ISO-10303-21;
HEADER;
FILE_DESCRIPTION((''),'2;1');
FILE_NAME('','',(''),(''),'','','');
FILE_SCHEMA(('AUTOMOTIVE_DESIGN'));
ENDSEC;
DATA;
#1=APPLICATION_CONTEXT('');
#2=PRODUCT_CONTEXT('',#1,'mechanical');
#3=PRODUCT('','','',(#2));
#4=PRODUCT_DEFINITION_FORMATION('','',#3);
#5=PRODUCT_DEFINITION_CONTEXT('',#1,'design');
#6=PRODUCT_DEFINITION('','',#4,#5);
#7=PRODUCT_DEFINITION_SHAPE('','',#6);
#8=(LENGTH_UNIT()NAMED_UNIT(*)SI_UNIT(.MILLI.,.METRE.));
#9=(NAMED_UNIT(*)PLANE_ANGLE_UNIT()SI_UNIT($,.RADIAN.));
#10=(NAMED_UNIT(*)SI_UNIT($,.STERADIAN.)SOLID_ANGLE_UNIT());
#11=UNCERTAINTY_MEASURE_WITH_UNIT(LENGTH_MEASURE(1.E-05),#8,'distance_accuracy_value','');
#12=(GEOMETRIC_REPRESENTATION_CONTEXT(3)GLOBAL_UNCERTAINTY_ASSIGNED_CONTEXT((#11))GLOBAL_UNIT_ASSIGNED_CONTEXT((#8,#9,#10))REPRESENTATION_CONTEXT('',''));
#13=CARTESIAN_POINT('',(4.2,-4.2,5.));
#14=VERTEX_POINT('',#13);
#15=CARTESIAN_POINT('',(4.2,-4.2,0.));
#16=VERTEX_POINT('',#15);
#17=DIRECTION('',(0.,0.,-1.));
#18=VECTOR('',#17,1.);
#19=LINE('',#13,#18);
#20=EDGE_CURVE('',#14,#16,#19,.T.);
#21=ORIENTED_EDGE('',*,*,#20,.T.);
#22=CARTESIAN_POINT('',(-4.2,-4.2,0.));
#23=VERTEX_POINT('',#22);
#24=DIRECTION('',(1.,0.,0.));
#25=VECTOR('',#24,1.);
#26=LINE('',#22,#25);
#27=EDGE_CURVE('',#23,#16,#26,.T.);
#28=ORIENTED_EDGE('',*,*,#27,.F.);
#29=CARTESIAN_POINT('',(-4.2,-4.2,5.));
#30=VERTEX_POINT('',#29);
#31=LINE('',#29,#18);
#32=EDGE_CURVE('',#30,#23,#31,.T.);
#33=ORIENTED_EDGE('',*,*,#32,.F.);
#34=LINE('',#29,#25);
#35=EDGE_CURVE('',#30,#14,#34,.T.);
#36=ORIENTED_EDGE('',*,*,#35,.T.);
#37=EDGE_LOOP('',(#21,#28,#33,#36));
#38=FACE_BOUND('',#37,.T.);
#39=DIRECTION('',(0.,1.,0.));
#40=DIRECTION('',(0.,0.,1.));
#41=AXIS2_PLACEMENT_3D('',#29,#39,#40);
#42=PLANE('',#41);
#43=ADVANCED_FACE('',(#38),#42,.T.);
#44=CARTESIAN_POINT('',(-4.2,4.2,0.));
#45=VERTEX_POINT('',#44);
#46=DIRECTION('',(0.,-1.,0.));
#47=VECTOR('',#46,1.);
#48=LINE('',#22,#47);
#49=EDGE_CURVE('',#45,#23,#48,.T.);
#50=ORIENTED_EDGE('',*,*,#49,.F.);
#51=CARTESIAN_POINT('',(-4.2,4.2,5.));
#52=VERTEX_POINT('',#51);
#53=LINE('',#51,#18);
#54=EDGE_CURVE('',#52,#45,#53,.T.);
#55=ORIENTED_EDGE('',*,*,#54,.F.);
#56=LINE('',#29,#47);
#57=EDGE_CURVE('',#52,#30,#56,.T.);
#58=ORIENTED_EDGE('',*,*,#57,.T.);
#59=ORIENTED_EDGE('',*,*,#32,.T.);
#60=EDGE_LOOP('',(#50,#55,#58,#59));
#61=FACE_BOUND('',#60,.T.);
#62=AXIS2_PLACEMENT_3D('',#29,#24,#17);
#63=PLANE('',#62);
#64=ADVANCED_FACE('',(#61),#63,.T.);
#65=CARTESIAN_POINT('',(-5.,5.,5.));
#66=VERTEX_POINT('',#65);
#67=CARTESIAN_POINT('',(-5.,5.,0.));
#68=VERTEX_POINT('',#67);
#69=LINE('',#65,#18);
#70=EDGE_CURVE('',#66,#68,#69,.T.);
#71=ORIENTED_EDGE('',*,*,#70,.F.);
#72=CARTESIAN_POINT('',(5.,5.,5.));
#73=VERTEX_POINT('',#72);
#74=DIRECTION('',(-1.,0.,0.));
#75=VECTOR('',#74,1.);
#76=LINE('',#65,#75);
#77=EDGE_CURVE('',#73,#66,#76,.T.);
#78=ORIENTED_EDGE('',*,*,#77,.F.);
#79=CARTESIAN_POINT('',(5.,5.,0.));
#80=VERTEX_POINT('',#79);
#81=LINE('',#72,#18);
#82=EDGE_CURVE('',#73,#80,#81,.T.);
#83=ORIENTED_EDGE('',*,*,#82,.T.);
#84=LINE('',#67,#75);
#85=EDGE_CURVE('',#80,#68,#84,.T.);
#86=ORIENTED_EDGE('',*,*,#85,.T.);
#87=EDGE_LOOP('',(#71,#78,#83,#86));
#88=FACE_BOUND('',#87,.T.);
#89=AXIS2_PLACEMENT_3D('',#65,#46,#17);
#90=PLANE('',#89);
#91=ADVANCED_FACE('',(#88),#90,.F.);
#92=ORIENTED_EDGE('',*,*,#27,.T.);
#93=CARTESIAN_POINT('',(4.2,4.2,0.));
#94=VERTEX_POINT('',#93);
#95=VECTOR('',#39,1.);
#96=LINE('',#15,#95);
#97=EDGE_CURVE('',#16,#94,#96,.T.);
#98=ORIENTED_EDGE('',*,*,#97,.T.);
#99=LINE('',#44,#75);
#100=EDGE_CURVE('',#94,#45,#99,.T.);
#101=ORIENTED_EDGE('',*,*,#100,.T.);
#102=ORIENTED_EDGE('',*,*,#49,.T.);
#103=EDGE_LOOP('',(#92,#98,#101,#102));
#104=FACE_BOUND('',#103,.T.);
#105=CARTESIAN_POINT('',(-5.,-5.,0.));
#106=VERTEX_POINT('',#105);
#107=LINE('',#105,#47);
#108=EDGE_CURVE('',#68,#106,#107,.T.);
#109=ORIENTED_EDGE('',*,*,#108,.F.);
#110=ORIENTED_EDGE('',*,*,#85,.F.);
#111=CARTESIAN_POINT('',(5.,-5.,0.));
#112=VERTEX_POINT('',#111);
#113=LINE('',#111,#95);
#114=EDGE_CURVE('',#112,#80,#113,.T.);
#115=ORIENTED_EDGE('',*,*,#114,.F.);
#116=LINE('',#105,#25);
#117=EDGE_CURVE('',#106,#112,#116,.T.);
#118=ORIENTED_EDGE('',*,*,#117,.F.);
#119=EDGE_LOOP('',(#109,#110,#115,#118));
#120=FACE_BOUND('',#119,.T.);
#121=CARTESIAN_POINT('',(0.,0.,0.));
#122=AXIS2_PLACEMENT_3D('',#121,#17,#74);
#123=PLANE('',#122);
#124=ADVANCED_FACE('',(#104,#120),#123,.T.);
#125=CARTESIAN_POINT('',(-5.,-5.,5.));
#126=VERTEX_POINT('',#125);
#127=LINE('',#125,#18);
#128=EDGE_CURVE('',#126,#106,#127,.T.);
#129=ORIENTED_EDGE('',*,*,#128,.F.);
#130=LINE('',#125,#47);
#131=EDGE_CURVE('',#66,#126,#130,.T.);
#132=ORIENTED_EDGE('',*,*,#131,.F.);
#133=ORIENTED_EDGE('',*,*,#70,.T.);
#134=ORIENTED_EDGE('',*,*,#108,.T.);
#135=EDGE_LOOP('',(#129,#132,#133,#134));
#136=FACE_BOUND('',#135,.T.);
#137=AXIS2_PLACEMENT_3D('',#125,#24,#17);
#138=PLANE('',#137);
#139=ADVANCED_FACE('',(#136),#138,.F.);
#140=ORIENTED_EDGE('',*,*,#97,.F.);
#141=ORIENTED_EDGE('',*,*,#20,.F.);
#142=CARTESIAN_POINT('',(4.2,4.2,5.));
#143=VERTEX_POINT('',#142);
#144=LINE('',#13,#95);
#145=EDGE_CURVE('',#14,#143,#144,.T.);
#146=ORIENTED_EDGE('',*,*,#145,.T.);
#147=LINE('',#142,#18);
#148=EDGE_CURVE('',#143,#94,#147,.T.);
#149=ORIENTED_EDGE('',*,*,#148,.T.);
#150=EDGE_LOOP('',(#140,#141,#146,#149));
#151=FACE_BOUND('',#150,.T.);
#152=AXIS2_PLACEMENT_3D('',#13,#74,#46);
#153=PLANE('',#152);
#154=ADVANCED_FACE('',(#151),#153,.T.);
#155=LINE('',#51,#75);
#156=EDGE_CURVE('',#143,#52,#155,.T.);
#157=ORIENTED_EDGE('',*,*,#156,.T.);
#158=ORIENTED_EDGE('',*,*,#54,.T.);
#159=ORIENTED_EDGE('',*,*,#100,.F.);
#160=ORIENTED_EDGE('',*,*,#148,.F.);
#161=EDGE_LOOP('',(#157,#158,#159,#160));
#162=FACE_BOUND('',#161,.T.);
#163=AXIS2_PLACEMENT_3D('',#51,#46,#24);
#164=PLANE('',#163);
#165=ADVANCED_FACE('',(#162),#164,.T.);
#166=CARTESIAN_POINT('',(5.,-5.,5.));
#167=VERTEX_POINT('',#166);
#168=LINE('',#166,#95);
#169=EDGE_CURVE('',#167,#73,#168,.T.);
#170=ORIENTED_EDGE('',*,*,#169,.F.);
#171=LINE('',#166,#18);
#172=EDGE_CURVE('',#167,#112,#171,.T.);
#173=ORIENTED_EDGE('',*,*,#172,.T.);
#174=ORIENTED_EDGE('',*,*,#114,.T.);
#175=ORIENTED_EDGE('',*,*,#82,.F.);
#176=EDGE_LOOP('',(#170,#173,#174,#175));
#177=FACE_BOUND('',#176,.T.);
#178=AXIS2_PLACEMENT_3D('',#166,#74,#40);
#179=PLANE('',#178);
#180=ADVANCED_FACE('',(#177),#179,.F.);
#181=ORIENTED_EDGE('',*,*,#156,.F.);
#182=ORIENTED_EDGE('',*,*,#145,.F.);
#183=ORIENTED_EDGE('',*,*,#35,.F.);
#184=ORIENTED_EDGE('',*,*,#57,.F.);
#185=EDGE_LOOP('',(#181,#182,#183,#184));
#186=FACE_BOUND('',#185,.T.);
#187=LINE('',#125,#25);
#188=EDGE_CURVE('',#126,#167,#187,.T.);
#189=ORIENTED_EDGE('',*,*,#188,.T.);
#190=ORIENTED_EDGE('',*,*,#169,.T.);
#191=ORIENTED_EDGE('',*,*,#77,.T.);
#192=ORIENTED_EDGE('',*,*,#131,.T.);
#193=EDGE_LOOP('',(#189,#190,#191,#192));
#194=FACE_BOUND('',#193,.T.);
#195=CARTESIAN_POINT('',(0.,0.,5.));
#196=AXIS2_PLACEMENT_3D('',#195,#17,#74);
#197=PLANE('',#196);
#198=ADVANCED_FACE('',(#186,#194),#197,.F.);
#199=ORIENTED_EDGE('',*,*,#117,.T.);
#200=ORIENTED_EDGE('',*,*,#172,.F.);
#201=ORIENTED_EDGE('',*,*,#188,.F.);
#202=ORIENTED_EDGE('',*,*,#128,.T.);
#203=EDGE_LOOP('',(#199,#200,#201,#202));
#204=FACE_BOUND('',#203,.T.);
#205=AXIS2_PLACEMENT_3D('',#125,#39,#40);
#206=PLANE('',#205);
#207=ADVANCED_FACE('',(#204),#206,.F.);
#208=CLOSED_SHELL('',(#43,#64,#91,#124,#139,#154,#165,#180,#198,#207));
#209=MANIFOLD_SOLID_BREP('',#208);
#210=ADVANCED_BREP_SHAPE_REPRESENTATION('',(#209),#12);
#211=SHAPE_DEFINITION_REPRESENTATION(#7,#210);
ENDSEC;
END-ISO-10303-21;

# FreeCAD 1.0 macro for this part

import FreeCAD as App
import Part
import Sketcher

V = App.Vector


def add_polygon(sketch, points):
    """Adds a closed chain of lines whose ends are joined by coincident constraints."""
    first, n = sketch.GeometryCount, len(points)
    for a, b in zip(points, points[1:] + points[:1]):
        sketch.addGeometry(Part.LineSegment(App.Vector(*a, 0), App.Vector(*b, 0)), False)
    for i in range(n):
        sketch.addConstraint(Sketcher.Constraint("Coincident", first + i, 2, first + (i + 1) % n, 1))

doc = App.newDocument("Part")
body = doc.addObject("PartDesign::Body", "Body")

# Sketch on XY plane
sketch1 = body.newObject("Sketcher::SketchObject", "Sketch")
sketch1.AttachmentSupport = (doc.getObject("XY_Plane"), [""])
sketch1.MapMode = "FlatFace"
add_polygon(sketch1, [(-5, 5), (-5, -5), (5, -5), (5, 5)])  # lines 0-3
add_polygon(sketch1, [(4, -4), (-4, -4), (-4, 4), (4, 4)])  # lines 4-7
sketch1.addConstraint(Sketcher.Constraint("Vertical", 0))
sketch1.addConstraint(Sketcher.Constraint("Horizontal", 1))
sketch1.addConstraint(Sketcher.Constraint("Vertical", 2))
sketch1.addConstraint(Sketcher.Constraint("Horizontal", 3))
sketch1.addConstraint(Sketcher.Constraint("Horizontal", 4))
sketch1.addConstraint(Sketcher.Constraint("Vertical", 5))
sketch1.addConstraint(Sketcher.Constraint("Horizontal", 6))
sketch1.addConstraint(Sketcher.Constraint("Vertical", 7))
sketch1.addConstraint(Sketcher.Constraint("Symmetric", 0, 2, 2, 2, -1, 1))
sketch1.addConstraint(Sketcher.Constraint("Symmetric", 4, 2, 6, 2, -1, 1))
sketch1.addConstraint(Sketcher.Constraint("Equal", 3, 0))
sketch1.addConstraint(Sketcher.Constraint("Equal", 6, 5))
sketch1.addConstraint(Sketcher.Constraint("DistanceX", 1, 1, 1, 2, 10.0))
sketch1.addConstraint(Sketcher.Constraint("DistanceX", 4, 2, 4, 1, 8.4))
pad1 = body.newObject("PartDesign::Pad", "Pad")
pad1.Profile = sketch1
pad1.Length = 5

doc.recompute()
